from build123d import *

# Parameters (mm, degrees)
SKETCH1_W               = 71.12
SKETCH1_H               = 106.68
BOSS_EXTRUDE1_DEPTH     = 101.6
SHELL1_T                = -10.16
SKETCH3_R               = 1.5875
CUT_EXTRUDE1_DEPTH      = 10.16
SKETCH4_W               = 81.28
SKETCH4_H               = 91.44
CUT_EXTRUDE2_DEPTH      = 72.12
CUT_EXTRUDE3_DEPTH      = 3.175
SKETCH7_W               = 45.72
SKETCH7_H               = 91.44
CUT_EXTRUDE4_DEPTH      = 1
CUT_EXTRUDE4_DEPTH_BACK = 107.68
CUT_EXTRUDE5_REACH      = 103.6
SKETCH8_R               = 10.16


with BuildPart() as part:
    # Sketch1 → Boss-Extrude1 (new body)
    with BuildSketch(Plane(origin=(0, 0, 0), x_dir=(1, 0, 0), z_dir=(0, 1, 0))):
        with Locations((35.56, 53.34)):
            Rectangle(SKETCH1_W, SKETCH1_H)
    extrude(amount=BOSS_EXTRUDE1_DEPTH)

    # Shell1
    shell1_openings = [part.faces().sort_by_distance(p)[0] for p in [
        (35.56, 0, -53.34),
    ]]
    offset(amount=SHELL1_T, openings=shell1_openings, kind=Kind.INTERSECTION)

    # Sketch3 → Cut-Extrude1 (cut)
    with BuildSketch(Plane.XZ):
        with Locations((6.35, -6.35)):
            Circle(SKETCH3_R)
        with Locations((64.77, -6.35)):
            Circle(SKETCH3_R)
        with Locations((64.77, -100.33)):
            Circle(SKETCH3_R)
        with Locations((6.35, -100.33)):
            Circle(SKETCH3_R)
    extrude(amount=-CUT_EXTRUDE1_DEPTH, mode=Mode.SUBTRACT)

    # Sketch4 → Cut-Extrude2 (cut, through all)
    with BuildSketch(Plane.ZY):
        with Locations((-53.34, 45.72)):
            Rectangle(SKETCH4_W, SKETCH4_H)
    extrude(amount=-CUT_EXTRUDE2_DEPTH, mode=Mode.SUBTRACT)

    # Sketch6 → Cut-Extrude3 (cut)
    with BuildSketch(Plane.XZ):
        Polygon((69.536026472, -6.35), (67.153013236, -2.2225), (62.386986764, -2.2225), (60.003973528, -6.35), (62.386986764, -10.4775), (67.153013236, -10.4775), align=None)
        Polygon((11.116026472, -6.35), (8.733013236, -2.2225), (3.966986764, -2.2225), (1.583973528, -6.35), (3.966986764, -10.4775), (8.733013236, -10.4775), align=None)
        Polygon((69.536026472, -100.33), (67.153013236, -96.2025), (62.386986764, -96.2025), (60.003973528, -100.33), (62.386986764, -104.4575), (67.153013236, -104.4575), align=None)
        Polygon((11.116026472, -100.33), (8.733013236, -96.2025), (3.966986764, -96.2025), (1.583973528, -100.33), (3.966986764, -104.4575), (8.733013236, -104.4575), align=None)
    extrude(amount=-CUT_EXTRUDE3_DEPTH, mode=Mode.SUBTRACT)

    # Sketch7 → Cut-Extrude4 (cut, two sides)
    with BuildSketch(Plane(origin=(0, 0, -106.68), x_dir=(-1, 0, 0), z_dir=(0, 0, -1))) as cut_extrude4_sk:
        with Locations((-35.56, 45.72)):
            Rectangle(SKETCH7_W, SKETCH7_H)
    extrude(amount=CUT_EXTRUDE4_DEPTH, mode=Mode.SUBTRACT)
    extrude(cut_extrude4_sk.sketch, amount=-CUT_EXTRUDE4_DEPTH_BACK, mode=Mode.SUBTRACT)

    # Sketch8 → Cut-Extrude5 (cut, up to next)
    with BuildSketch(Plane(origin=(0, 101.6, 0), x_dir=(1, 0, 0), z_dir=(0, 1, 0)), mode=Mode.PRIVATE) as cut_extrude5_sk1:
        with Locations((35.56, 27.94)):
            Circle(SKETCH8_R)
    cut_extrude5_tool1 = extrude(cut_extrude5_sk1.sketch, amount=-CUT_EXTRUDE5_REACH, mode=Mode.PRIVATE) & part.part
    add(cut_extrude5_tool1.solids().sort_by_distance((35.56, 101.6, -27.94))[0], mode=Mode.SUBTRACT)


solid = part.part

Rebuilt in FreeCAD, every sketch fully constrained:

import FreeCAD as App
import Part
import Sketcher
from FreeCAD import Vector
Q = App.Units.Quantity


def faces_at(feature, points):
    """Names of the faces that lie closest to the given points."""
    faces = feature.Shape.Faces
    near = lambda p: min(range(len(faces)), key=lambda i: faces[i].distToShape(Part.Vertex(*p))[0])
    return sorted({f"Face{near(p) + 1}" for p in points})


def add_polygon(sketch, points):
    """Adds a closed chain of lines whose ends are joined by coincident constraints."""
    first, n = sketch.GeometryCount, len(points)
    for a, b in zip(points, points[1:] + points[:1]):
        sketch.addGeometry(Part.LineSegment(App.Vector(*a, 0), App.Vector(*b, 0)), False)
    for i in range(n):
        sketch.addConstraint(Sketcher.Constraint("Coincident", first + i, 2, first + (i + 1) % n, 1))

doc = App.newDocument("Part")
params = doc.addObject("Spreadsheet::Sheet", "Params")
for row, (alias, value) in enumerate([
    ("sketch1_width", "2.8 in"),
    ("sketch1_height", "4.2 in"),
    ("pad1_length", "4 in"),
    ("thickness_wall", "0.4 in"),
    ("sketch2_diameter", "0.125 in"),
    ("pocket1_length", "0.4 in"),
    ("sketch3_width", "3.6 in"),
    ("sketch3_height", "3.2 in"),
    ("pocket3_length", "0.125 in"),
    ("sketch5_width", "1.8 in"),
    ("sketch5_height", "3.6 in"),
    ("sketch6_diameter", "0.8 in"),
], start=1):
    params.set(f"A{row}", alias)
    params.set(f"B{row}", "=" + value)
    params.setAlias(f"B{row}", alias)

body = doc.addObject("PartDesign::Body", "Body")

# Sketch on XZ plane
sketch1 = doc.addObject("Sketcher::SketchObject", "Sketch")
body.addObject(sketch1)
sketch1.AttachmentSupport = (doc.XZ_Plane, [""])
sketch1.MapMode = "FlatFace"
add_polygon(sketch1, [(0, -106.68), (0, 0), (71.12, 0), (71.12, -106.68)])  # lines 0-3
sketch1.addConstraint([
    Sketcher.Constraint("Vertical", 0),
    Sketcher.Constraint("Horizontal", 1),
    Sketcher.Constraint("Vertical", 2),
    Sketcher.Constraint("Horizontal", 3),
    Sketcher.Constraint("Coincident", 0, 2, -1, 1),
    Sketcher.Constraint("DistanceX", 1, 1, 1, 2, Q("2.8 in")),
    Sketcher.Constraint("DistanceY", 0, 1, 0, 2, Q("4.2 in")),
])
sketch1.setExpression("Constraints[9]", "Params.sketch1_width")
sketch1.setExpression("Constraints[10]", "Params.sketch1_height")
pad1 = doc.addObject("PartDesign::Pad", "Pad")
body.addObject(pad1)
pad1.Profile = sketch1
pad1.setExpression("Length", "Params.pad1_length")
pad1.Reversed = True
doc.recompute()

thickness = doc.addObject("PartDesign::Thickness", "Thickness")
body.addObject(thickness)
thickness.Base = (pad1, faces_at(pad1, [(35.56, 0, -53.34)]))
thickness.setExpression("Value", "Params.thickness_wall")
thickness.Reversed = True
thickness.Join = "Intersection"

# Sketch on XZ plane
sketch2 = doc.addObject("Sketcher::SketchObject", "Sketch001")
body.addObject(sketch2)
sketch2.AttachmentSupport = (doc.XZ_Plane, [""])
sketch2.MapMode = "FlatFace"
sketch2.addGeometry([
    Part.Circle(Vector(6.35, -6.35, 0), Vector(0, 0, 1), 1.5875),
    Part.Circle(Vector(64.77, -6.35, 0), Vector(0, 0, 1), 1.5875),
    Part.Circle(Vector(64.77, -100.33, 0), Vector(0, 0, 1), 1.5875),
    Part.Circle(Vector(6.35, -100.33, 0), Vector(0, 0, 1), 1.5875),
], False)
sketch2.addConstraint([
    Sketcher.Constraint("Equal", 0, 1),
    Sketcher.Constraint("Equal", 1, 2),
    Sketcher.Constraint("Equal", 2, 3),
    Sketcher.Constraint("Horizontal", 0, 3, 1, 3),
    Sketcher.Constraint("Horizontal", 2, 3, 3, 3),
    Sketcher.Constraint("Vertical", 1, 3, 2, 3),
    Sketcher.Constraint("Vertical", 0, 3, 3, 3),
    Sketcher.Constraint("Diameter", 0, Q("0.125 in")),
    Sketcher.Constraint("DistanceX", 0, 3, 1, 3, Q("2.3 in")),
    Sketcher.Constraint("DistanceY", 2, 3, 1, 3, Q("3.7 in")),
    Sketcher.Constraint("DistanceX", -1, 1, 0, 3, Q("0.25 in")),
    Sketcher.Constraint("DistanceY", 0, 3, -1, 1, Q("0.25 in")),
])
sketch2.setExpression("Constraints[7]", "Params.sketch2_diameter")
pocket1 = doc.addObject("PartDesign::Pocket", "Pocket")
body.addObject(pocket1)
pocket1.Profile = sketch2
pocket1.setExpression("Length", "Params.pocket1_length")

# Sketch on YZ plane
sketch3 = doc.addObject("Sketcher::SketchObject", "Sketch002")
body.addObject(sketch3)
sketch3.AttachmentSupport = (doc.YZ_Plane, [""])
sketch3.MapMode = "FlatFace"
add_polygon(sketch3, [(91.44, -93.98), (0, -93.98), (0, -12.7), (91.44, -12.7)])  # lines 0-3
sketch3.addConstraint([
    Sketcher.Constraint("Horizontal", 0),
    Sketcher.Constraint("Vertical", 1),
    Sketcher.Constraint("Horizontal", 2),
    Sketcher.Constraint("Vertical", 3),
    Sketcher.Constraint("PointOnObject", 0, 2, -2),
    Sketcher.Constraint("DistanceX", 0, 2, 0, 1, Q("3.6 in")),
    Sketcher.Constraint("DistanceY", 1, 1, 1, 2, Q("3.2 in")),
    Sketcher.Constraint("DistanceY", 0, 2, -1, 1, Q("3.7 in")),
])
sketch3.setExpression("Constraints[9]", "Params.sketch3_width")
sketch3.setExpression("Constraints[10]", "Params.sketch3_height")
pocket2 = doc.addObject("PartDesign::Pocket", "Pocket001")
body.addObject(pocket2)
pocket2.Profile = sketch3
pocket2.Type = "ThroughAll"
pocket2.Reversed = True

# Sketch on XZ plane
sketch4 = doc.addObject("Sketcher::SketchObject", "Sketch003")
body.addObject(sketch4)
sketch4.AttachmentSupport = (doc.XZ_Plane, [""])
sketch4.MapMode = "FlatFace"
add_polygon(sketch4, [(69.536026, -6.35), (67.153013, -2.2225), (62.386987, -2.2225), (60.003974, -6.35), (62.386987, -10.4775), (67.153013, -10.4775)])  # lines 0-5
add_polygon(sketch4, [(11.116026, -6.35), (8.733013, -2.2225), (3.966987, -2.2225), (1.583974, -6.35), (3.966987, -10.4775), (8.733013, -10.4775)])  # lines 6-11
add_polygon(sketch4, [(69.536026, -100.33), (67.153013, -96.2025), (62.386987, -96.2025), (60.003974, -100.33), (62.386987, -104.4575), (67.153013, -104.4575)])  # lines 12-17
add_polygon(sketch4, [(11.116026, -100.33), (8.733013, -96.2025), (3.966987, -96.2025), (1.583974, -100.33), (3.966987, -104.4575), (8.733013, -104.4575)])  # lines 18-23
sketch4.addConstraint([
    Sketcher.Constraint("Horizontal", 1),
    Sketcher.Constraint("Horizontal", 4),
    Sketcher.Constraint("Horizontal", 7),
    Sketcher.Constraint("Horizontal", 10),
    Sketcher.Constraint("Horizontal", 13),
    Sketcher.Constraint("Horizontal", 16),
    Sketcher.Constraint("Horizontal", 19),
    Sketcher.Constraint("Horizontal", 22),
    Sketcher.Constraint("Parallel", 0, 3),
    Sketcher.Constraint("Parallel", 2, 5),
    Sketcher.Constraint("Parallel", 3, 6),
    Sketcher.Constraint("Parallel", 5, 8),
    Sketcher.Constraint("Parallel", 6, 9),
    Sketcher.Constraint("Parallel", 8, 11),
    Sketcher.Constraint("Parallel", 9, 12),
    Sketcher.Constraint("Parallel", 11, 14),
    Sketcher.Constraint("Parallel", 12, 15),
    Sketcher.Constraint("Parallel", 14, 17),
    Sketcher.Constraint("Parallel", 15, 18),
    Sketcher.Constraint("Parallel", 17, 20),
    Sketcher.Constraint("Parallel", 18, 21),
    Sketcher.Constraint("Parallel", 20, 23),
    Sketcher.Constraint("Horizontal", 2, 2, 5, 2),
    Sketcher.Constraint("Horizontal", 1, 2, 6, 2),
    Sketcher.Constraint("Horizontal", 5, 2, 8, 2),
    Sketcher.Constraint("Horizontal", 4, 2, 9, 2),
    Sketcher.Constraint("Horizontal", 8, 2, 11, 2),
    Sketcher.Constraint("Horizontal", 14, 2, 17, 2),
    Sketcher.Constraint("Horizontal", 13, 2, 18, 2),
    Sketcher.Constraint("Horizontal", 17, 2, 20, 2),
    Sketcher.Constraint("Horizontal", 16, 2, 21, 2),
    Sketcher.Constraint("Horizontal", 20, 2, 23, 2),
    Sketcher.Constraint("Vertical", 1, 2, 3, 2),
    Sketcher.Constraint("Vertical", 0, 2, 4, 2),
    Sketcher.Constraint("Vertical", 4, 2, 12, 2),
    Sketcher.Constraint("Vertical", 3, 2, 13, 2),
    Sketcher.Constraint("Vertical", 2, 2, 14, 2),
    Sketcher.Constraint("Vertical", 13, 2, 15, 2),
    Sketcher.Constraint("Vertical", 10, 2, 18, 2),
    Sketcher.Constraint("Vertical", 9, 2, 19, 2),
    Sketcher.Constraint("Equal", 4, 7),
    Sketcher.Constraint("Angle", 0, Q("120 deg")),
    Sketcher.Constraint("DistanceX", 6, 2, 0, 2, Q("2.3 in")),
    Sketcher.Constraint("DistanceY", 12, 2, 0, 2, Q("3.7 in")),
    Sketcher.Constraint("DistanceY", 2, 2, -1, 1, Q("0.25 in")),
    Sketcher.Constraint("DistanceY", 3, 2, 1, 2, Q("0.325 in")),
    Sketcher.Constraint("DistanceX", 1, 2, 1, 1, 4.766026),
    Sketcher.Constraint("DistanceX", -1, 1, 0, 2, 67.153013),
])
pocket3 = doc.addObject("PartDesign::Pocket", "Pocket002")
body.addObject(pocket3)
pocket3.Profile = sketch4
pocket3.setExpression("Length", "Params.pocket3_length")

# Sketch on XY plane
sketch5 = doc.addObject("Sketcher::SketchObject", "Sketch004")
body.addObject(sketch5)
sketch5.AttachmentSupport = (doc.XY_Plane, [""])
sketch5.MapMode = "FlatFace"
sketch5.AttachmentOffset = App.Placement(Vector(0, 0, -4.2 * 25.4), App.Rotation())
add_polygon(sketch5, [(58.42, 91.44), (58.42, 0), (12.7, 0), (12.7, 91.44)])  # lines 0-3
sketch5.addConstraint([
    Sketcher.Constraint("Vertical", 0),
    Sketcher.Constraint("Horizontal", 1),
    Sketcher.Constraint("Vertical", 2),
    Sketcher.Constraint("Horizontal", 3),
    Sketcher.Constraint("PointOnObject", 0, 2, -1),
    Sketcher.Constraint("DistanceX", 1, 2, 1, 1, Q("1.8 in")),
    Sketcher.Constraint("DistanceY", 0, 2, 0, 1, Q("3.6 in")),
    Sketcher.Constraint("DistanceX", -1, 1, 0, 2, Q("2.3 in")),
])
sketch5.setExpression("Constraints[9]", "Params.sketch5_width")
sketch5.setExpression("Constraints[10]", "Params.sketch5_height")
pocket4 = doc.addObject("PartDesign::Pocket", "Pocket003")
body.addObject(pocket4)
pocket4.Profile = sketch5
pocket4.Type = "ThroughAll"
pocket4.Midplane = True

# Sketch on XZ plane
sketch6 = doc.addObject("Sketcher::SketchObject", "Sketch005")
body.addObject(sketch6)
sketch6.AttachmentSupport = (doc.XZ_Plane, [""])
sketch6.MapMode = "FlatFace"
sketch6.AttachmentOffset = App.Placement(Vector(0, 0, -4 * 25.4), App.Rotation())
sketch6.addGeometry(Part.Circle(Vector(35.56, -27.94, 0), Vector(0, 0, 1), 10.16), False)
sketch6.addConstraint([
    Sketcher.Constraint("Diameter", 0, Q("0.8 in")),
    Sketcher.Constraint("DistanceX", -1, 1, 0, 3, Q("1.4 in")),
    Sketcher.Constraint("DistanceY", 0, 3, -1, 1, Q("1.1 in")),
])
sketch6.setExpression("Constraints[0]", "Params.sketch6_diameter")
pocket5 = doc.addObject("PartDesign::Pocket", "Pocket004")
body.addObject(pocket5)
pocket5.Profile = sketch6
pocket5.Type = "UpToFirst"
pocket5.Reversed = True

doc.recompute()
